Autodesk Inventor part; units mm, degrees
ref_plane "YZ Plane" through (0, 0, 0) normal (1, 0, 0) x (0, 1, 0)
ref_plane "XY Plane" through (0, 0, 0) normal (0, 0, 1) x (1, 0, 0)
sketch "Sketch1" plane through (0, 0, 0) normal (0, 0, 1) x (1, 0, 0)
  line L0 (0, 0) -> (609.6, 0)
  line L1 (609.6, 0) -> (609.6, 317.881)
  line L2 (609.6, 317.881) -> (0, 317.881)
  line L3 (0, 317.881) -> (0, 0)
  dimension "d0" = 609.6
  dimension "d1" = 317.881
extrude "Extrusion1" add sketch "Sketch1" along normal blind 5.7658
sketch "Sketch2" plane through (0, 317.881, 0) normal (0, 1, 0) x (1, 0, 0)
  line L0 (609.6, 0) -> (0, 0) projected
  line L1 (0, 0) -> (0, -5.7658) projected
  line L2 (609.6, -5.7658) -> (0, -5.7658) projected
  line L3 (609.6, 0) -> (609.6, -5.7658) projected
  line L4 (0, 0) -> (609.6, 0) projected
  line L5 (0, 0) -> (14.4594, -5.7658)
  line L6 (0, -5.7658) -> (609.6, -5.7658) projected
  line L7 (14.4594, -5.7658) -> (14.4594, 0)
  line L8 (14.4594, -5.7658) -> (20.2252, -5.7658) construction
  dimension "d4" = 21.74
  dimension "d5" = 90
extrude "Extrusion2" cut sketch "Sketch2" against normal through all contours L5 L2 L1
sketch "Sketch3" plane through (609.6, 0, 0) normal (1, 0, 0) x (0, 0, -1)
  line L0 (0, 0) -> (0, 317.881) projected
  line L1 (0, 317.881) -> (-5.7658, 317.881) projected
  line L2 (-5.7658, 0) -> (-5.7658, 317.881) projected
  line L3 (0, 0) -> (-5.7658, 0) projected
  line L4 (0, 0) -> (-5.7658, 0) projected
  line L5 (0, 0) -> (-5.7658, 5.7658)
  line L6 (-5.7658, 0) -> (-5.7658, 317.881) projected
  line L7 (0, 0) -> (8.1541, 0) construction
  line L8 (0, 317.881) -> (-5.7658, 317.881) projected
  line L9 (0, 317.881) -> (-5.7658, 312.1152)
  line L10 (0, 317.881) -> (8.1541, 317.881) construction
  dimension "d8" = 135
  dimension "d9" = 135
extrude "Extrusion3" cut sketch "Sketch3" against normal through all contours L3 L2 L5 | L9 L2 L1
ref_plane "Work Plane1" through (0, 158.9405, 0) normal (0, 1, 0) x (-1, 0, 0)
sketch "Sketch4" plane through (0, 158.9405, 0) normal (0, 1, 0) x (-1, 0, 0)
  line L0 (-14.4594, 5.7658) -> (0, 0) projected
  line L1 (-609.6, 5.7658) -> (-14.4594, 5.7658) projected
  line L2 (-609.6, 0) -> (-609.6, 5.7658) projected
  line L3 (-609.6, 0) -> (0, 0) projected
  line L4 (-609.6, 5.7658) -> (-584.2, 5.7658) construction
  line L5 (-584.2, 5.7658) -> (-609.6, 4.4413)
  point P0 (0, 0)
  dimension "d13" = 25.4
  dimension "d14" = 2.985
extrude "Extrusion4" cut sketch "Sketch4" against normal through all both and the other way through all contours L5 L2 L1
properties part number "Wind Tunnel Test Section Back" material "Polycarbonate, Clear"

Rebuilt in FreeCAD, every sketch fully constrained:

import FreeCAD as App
import Part
import Sketcher

V = App.Vector
Q = App.Units.Quantity

doc = App.newDocument("Part")
body = doc.addObject("PartDesign::Body", "Body")

# Sketch on XY plane
sketch1 = body.newObject("Sketcher::SketchObject", "Sketch")
sketch1.AttachmentSupport = (doc.getObject("XY_Plane"), [""])
sketch1.MapMode = "FlatFace"
sketch1.addGeometry([
    Part.LineSegment(V(0, 318, 0), V(0, 0, 0)),
    Part.LineSegment(V(0, 0, 0), V(610, 0, 0)),
    Part.LineSegment(V(610, 0, 0), V(610, 318, 0)),
    Part.LineSegment(V(610, 318, 0), V(0, 318, 0)),
], False)
sketch1.addConstraint([
    Sketcher.Constraint("Coincident", 0, 2, 1, 1),
    Sketcher.Constraint("Coincident", 1, 2, 2, 1),
    Sketcher.Constraint("Coincident", 2, 2, 3, 1),
    Sketcher.Constraint("Coincident", 3, 2, 0, 1),
    Sketcher.Constraint("Vertical", 0),
    Sketcher.Constraint("Horizontal", 1),
    Sketcher.Constraint("Vertical", 2),
    Sketcher.Constraint("Horizontal", 3),
    Sketcher.Constraint("Coincident", 0, 2, -1, 1),
    Sketcher.Constraint("DistanceX", 1, 1, 1, 2, Q("24 in")),
    Sketcher.Constraint("DistanceY", 0, 2, 0, 1, Q("12.515 in")),
])
pad1 = body.newObject("PartDesign::Pad", "Pad")
pad1.Profile = sketch1
pad1.Length = Q("0.227 in")

# Sketch on XZ plane
sketch2 = body.newObject("Sketcher::SketchObject", "Sketch001")
sketch2.AttachmentSupport = (doc.getObject("XZ_Plane"), [""])
sketch2.MapMode = "FlatFace"
sketch2.AttachmentOffset = App.Placement(V(0, 0, -12.515 * 25.4), App.Rotation())
sketch2.addGeometry([
    Part.LineSegment(V(14, 6, 0), V(0, 0, 0)),
    Part.LineSegment(V(0, 0, 0), V(0, 6, 0)),
    Part.LineSegment(V(0, 6, 0), V(14, 6, 0)),
], False)
sketch2.addConstraint([
    Sketcher.Constraint("Coincident", 0, 2, 1, 1),
    Sketcher.Constraint("Coincident", 1, 2, 2, 1),
    Sketcher.Constraint("Coincident", 2, 2, 0, 1),
    Sketcher.Constraint("Vertical", 1),
    Sketcher.Constraint("Horizontal", 2),
    Sketcher.Constraint("Coincident", 0, 2, -1, 1),
    Sketcher.Constraint("DistanceY", 1, 1, 1, 2, Q("0.227 in")),
    Sketcher.Constraint("Angle", 0, Q("-158.26 deg")),
])
pocket1 = body.newObject("PartDesign::Pocket", "Pocket")
pocket1.Profile = sketch2
pocket1.Type = "ThroughAll"
pocket1.Reversed = True

# Sketch on YZ plane
sketch3 = body.newObject("Sketcher::SketchObject", "Sketch002")
sketch3.AttachmentSupport = (doc.getObject("YZ_Plane"), [""])
sketch3.MapMode = "FlatFace"
sketch3.AttachmentOffset = App.Placement(V(0, 0, 24 * 25.4), App.Rotation())
sketch3.addGeometry([
    Part.LineSegment(V(0, 6, 0), V(0, 0, 0)),  # 0
    Part.LineSegment(V(0, 0, 0), V(6, 6, 0)),  # 1
    Part.LineSegment(V(6, 6, 0), V(0, 6, 0)),  # 2
    Part.LineSegment(V(312, 6, 0), V(318, 0, 0)),  # 3
    Part.LineSegment(V(318, 0, 0), V(318, 6, 0)),  # 4
    Part.LineSegment(V(318, 6, 0), V(312, 6, 0)),  # 5
], False)
sketch3.addConstraint([
    Sketcher.Constraint("Coincident", 0, 2, 1, 1),
    Sketcher.Constraint("Coincident", 1, 2, 2, 1),
    Sketcher.Constraint("Coincident", 2, 2, 0, 1),
    Sketcher.Constraint("Coincident", 3, 2, 4, 1),
    Sketcher.Constraint("Coincident", 4, 2, 5, 1),
    Sketcher.Constraint("Coincident", 5, 2, 3, 1),
    Sketcher.Constraint("Vertical", 0),
    Sketcher.Constraint("Horizontal", 2),
    Sketcher.Constraint("Vertical", 4),
    Sketcher.Constraint("Horizontal", 5),
    Sketcher.Constraint("Coincident", 0, 2, -1, 1),
    Sketcher.Constraint("PointOnObject", 3, 2, -1),
    Sketcher.Constraint("Perpendicular", 1, 3),
    Sketcher.Constraint("Horizontal", 2, 2, 4, 2),
    Sketcher.Constraint("Equal", 2, 5),
    Sketcher.Constraint("DistanceX", 2, 2, 2, 1, Q("0.227 in")),
    Sketcher.Constraint("DistanceX", -1, 1, 3, 2, Q("12.515 in")),
])
pocket2 = body.newObject("PartDesign::Pocket", "Pocket001")
pocket2.Profile = sketch3
pocket2.Type = "ThroughAll"

# Sketch on XZ plane
sketch4 = body.newObject("Sketcher::SketchObject", "Sketch003")
sketch4.AttachmentSupport = (doc.getObject("XZ_Plane"), [""])
sketch4.MapMode = "FlatFace"
sketch4.AttachmentOffset = App.Placement(V(0, 0, -6.2575 * 25.4), App.Rotation())
sketch4.addGeometry([
    Part.LineSegment(V(609.6, 4.4, 0), V(584.2, 5.8, 0)),
    Part.LineSegment(V(584.2, 5.8, 0), V(609.6, 5.8, 0)),
    Part.LineSegment(V(609.6, 5.8, 0), V(609.6, 4.4, 0)),
], False)
sketch4.addConstraint([
    Sketcher.Constraint("Coincident", 0, 2, 1, 1),
    Sketcher.Constraint("Coincident", 1, 2, 2, 1),
    Sketcher.Constraint("Coincident", 2, 2, 0, 1),
    Sketcher.Constraint("Horizontal", 1),
    Sketcher.Constraint("Vertical", 2),
    Sketcher.Constraint("DistanceX", 1, 1, 1, 2, Q("1 in")),
    Sketcher.Constraint("DistanceX", -1, 1, 0, 2, Q("23 in")),
    Sketcher.Constraint("DistanceY", -1, 1, 0, 2, Q("0.227 in")),
    Sketcher.Constraint("DistanceY", 2, 2, 2, 1, Q("1.3245 mm")),
])
pocket3 = body.newObject("PartDesign::Pocket", "Pocket002")
pocket3.Profile = sketch4
pocket3.Type = "ThroughAll"
pocket3.Midplane = True

doc.recompute()
